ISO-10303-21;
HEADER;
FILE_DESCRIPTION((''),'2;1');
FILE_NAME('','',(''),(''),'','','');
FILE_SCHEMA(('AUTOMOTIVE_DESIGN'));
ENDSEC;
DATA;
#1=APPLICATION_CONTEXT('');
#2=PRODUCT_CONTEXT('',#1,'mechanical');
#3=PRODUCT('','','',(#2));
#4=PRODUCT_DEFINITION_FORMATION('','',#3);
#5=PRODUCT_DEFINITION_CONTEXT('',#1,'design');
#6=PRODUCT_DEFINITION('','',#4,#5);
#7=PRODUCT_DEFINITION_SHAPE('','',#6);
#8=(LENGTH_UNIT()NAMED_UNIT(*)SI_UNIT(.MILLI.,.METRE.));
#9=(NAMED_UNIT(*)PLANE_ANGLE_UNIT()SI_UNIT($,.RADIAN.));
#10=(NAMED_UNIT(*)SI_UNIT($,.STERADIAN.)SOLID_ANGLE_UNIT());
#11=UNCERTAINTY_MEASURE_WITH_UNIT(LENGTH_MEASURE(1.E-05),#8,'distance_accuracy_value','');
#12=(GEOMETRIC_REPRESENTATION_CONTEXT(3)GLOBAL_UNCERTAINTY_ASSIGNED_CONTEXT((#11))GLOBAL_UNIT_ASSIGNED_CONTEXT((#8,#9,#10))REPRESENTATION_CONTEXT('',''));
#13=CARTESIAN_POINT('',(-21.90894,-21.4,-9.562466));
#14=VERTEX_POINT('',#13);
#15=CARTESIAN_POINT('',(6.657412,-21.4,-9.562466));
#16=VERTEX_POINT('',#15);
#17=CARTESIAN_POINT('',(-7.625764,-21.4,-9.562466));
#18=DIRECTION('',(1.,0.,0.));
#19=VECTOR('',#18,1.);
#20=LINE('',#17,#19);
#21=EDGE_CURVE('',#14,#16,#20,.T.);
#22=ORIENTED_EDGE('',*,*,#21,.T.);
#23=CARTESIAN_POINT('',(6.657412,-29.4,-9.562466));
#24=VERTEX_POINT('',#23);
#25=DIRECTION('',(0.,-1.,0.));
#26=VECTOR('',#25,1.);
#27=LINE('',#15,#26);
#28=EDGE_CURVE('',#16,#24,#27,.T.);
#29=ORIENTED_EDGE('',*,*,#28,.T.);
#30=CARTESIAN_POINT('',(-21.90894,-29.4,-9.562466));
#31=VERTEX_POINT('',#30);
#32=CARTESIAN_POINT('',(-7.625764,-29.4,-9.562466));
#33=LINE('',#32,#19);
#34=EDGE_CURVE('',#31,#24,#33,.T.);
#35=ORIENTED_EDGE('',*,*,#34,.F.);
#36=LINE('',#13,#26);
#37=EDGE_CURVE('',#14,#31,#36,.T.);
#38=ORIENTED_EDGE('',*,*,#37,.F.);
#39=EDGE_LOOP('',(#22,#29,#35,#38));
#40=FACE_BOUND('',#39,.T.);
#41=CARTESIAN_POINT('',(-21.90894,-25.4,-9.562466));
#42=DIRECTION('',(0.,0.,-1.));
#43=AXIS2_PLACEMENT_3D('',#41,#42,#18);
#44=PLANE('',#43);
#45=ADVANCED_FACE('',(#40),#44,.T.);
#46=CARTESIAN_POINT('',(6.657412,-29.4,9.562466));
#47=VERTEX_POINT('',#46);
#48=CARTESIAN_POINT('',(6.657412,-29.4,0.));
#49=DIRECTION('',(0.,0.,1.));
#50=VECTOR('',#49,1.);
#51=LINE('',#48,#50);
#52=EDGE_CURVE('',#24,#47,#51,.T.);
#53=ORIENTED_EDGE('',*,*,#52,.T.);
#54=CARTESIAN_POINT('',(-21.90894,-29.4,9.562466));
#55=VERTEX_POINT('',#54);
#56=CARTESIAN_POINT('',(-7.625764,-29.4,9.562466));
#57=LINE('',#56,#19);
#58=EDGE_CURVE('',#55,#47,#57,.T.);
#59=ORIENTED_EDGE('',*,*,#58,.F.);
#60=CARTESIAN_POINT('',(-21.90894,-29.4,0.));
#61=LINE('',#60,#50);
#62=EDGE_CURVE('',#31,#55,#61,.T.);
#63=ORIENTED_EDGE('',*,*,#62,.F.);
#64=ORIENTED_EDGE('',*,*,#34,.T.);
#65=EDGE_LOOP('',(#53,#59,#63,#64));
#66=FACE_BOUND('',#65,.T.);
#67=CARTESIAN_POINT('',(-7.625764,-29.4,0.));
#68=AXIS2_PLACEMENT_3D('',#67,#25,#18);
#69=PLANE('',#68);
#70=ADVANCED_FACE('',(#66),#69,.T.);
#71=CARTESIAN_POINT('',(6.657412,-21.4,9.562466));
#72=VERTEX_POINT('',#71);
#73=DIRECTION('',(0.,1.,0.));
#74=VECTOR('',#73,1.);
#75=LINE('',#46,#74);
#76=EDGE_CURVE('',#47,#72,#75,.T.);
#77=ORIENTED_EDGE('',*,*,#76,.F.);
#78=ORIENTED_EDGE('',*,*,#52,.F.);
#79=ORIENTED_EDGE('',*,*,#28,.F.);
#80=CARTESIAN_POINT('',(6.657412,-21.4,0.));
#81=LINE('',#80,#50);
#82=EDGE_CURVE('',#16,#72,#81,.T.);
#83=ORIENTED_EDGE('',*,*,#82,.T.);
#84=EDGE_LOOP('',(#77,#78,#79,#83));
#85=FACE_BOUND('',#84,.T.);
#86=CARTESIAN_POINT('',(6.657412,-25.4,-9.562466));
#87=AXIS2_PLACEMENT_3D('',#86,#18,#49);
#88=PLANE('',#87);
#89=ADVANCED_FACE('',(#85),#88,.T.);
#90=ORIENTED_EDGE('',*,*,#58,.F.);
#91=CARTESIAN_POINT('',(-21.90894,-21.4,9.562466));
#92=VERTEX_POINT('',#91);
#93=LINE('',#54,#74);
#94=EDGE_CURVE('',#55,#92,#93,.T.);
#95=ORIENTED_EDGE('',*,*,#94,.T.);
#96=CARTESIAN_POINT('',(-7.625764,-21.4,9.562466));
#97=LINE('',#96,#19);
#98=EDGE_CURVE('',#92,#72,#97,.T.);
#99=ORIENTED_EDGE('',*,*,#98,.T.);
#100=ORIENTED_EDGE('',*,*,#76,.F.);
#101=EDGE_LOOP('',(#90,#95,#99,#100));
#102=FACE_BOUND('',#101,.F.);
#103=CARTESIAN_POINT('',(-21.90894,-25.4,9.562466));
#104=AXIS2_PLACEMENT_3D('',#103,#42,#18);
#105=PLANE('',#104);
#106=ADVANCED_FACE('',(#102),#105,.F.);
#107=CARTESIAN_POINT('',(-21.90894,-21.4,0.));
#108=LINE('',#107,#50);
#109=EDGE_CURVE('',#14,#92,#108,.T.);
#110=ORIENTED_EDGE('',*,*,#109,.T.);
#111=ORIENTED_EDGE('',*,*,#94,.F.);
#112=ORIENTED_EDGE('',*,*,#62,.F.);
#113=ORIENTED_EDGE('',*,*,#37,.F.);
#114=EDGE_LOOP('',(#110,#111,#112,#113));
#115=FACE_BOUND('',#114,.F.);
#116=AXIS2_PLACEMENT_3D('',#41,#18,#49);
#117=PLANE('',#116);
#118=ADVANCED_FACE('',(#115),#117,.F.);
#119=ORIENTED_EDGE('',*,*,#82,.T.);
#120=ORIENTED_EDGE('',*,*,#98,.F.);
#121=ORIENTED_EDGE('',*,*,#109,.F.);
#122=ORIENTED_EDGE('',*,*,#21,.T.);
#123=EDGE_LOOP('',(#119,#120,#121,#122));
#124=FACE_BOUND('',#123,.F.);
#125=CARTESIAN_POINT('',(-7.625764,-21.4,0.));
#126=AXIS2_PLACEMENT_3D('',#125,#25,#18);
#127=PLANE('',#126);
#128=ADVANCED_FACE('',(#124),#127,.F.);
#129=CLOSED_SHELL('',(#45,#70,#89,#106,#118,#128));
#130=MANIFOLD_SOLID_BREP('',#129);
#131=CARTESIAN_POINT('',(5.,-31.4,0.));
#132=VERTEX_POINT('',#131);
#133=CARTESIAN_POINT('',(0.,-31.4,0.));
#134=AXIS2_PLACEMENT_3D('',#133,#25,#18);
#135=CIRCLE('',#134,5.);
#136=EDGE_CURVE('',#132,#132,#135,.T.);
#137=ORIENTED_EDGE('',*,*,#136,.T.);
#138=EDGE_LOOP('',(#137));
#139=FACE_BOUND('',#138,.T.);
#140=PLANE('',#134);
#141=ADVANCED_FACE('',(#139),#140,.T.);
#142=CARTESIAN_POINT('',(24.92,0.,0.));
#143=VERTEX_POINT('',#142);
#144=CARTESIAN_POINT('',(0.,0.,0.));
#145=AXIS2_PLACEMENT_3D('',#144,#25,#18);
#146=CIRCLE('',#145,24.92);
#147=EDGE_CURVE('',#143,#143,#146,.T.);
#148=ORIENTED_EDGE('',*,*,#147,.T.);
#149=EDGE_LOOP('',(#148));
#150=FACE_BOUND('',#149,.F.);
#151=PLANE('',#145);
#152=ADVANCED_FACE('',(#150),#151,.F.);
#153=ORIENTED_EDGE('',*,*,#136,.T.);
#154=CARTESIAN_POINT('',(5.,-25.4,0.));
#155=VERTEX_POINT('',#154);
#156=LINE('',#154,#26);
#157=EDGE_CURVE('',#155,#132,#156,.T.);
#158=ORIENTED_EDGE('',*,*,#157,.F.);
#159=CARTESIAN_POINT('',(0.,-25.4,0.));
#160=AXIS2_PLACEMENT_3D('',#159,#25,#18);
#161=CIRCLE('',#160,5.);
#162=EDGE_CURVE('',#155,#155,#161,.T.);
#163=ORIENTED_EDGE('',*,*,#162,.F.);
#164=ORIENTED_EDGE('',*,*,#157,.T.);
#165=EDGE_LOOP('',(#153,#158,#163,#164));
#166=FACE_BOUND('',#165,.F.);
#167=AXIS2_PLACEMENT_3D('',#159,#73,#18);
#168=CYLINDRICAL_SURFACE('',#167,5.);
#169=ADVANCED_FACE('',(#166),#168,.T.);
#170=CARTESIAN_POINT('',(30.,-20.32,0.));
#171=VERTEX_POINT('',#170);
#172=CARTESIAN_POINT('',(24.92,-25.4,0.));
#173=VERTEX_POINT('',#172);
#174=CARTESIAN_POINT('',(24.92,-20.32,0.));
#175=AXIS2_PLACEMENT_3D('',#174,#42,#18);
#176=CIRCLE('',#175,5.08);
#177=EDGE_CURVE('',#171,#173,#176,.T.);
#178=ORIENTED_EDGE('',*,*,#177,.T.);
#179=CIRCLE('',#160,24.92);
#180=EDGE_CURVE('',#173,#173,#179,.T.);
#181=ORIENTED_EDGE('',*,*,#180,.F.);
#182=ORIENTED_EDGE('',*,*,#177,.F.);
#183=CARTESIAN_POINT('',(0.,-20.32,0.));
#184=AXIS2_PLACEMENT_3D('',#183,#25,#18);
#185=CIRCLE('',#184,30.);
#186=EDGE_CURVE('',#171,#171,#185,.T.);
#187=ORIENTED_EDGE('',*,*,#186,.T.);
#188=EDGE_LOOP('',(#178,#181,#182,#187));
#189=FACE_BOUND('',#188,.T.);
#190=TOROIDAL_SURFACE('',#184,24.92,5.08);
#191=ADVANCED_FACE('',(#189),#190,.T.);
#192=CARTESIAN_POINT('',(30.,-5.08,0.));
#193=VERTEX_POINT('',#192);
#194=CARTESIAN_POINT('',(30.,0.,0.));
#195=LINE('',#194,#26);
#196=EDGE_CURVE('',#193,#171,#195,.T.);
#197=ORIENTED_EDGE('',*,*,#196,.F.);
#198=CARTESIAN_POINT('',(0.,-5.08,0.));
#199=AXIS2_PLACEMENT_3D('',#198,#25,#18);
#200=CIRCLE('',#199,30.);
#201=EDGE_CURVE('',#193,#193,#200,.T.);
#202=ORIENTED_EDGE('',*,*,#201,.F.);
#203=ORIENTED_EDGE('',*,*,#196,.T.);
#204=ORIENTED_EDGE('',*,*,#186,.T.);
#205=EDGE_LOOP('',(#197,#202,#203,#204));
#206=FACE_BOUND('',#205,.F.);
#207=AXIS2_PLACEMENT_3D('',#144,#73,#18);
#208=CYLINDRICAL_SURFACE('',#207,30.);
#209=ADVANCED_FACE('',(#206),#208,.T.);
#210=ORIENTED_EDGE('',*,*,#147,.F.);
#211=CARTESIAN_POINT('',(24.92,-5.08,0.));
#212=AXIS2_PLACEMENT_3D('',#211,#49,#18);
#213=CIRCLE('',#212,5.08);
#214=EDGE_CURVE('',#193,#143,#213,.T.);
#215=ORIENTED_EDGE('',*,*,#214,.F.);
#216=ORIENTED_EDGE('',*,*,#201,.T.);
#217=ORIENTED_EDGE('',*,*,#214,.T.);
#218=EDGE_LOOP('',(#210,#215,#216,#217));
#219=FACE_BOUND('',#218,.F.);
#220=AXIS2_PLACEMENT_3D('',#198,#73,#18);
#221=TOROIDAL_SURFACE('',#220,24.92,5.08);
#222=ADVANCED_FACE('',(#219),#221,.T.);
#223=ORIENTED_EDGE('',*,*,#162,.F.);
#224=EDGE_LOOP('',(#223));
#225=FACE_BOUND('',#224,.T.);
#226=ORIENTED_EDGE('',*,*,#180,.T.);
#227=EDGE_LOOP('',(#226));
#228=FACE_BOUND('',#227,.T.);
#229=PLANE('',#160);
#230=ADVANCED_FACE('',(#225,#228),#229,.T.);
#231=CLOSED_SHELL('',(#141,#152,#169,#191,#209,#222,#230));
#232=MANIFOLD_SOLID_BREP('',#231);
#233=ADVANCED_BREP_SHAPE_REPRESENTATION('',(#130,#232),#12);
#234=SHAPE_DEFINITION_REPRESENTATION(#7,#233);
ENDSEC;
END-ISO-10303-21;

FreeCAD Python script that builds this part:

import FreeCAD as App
import Part
import Sketcher


def edges_at(feature, points):
    """Names of the edges that pass closest to the given points."""
    edges = feature.Shape.Edges
    near = lambda p: min(range(len(edges)), key=lambda i: edges[i].distToShape(Part.Vertex(*p))[0])
    return sorted({f"Edge{near(p) + 1}" for p in points})


def add_polygon(sketch, points):
    """Adds a closed chain of lines whose ends are joined by coincident constraints."""
    first, n = sketch.GeometryCount, len(points)
    for a, b in zip(points, points[1:] + points[:1]):
        sketch.addGeometry(Part.LineSegment(App.Vector(*a, 0), App.Vector(*b, 0)), False)
    for i in range(n):
        sketch.addConstraint(Sketcher.Constraint("Coincident", first + i, 2, first + (i + 1) % n, 1))

doc = App.newDocument("Part")
params = doc.addObject("Spreadsheet::Sheet", "Params")
for row, (alias, value) in enumerate([
    ("sketch1_diameter", "60 mm"),
    ("pad1_length", "25.4 mm"),
    ("fillet_radius", "5.08 mm"),
    ("sketch2_diameter", "49.84 mm"),
    ("pad2_length", "25.4 mm"),
    ("sketch3_diameter", "10 mm"),
    ("pad3_length", "6 mm"),
    ("pad4_length", "8 mm"),
], start=1):
    params.set(f"A{row}", alias)
    params.set(f"B{row}", "=" + value)
    params.setAlias(f"B{row}", alias)

body = doc.addObject("PartDesign::Body", "Body")

# Sketch on XZ plane
sketch1 = body.newObject("Sketcher::SketchObject", "Sketch")
sketch1.AttachmentSupport = (doc.getObject("XZ_Plane"), [""])
sketch1.MapMode = "FlatFace"
sketch1.addGeometry(Part.Circle(App.Vector(0, 0, 0), App.Vector(0, 0, 1), 30), False)
sketch1.addConstraint([
    Sketcher.Constraint("Coincident", 0, 3, -1, 1),
    Sketcher.Constraint("Diameter", 0, 60.0),
])
sketch1.setExpression("Constraints[1]", "Params.sketch1_diameter")
pad1 = body.newObject("PartDesign::Pad", "Pad")
pad1.Profile = sketch1
pad1.setExpression("Length", "Params.pad1_length")
doc.recompute()

fillet = body.newObject("PartDesign::Fillet", "Fillet")
fillet.Base = (pad1, edges_at(pad1, [(-30, -25.4, 0), (-30, 0, 0)]))
fillet.setExpression("Radius", "Params.fillet_radius")

# Sketch on XZ plane
sketch2 = body.newObject("Sketcher::SketchObject", "Sketch001")
sketch2.AttachmentSupport = (doc.getObject("XZ_Plane"), [""])
sketch2.MapMode = "FlatFace"
sketch2.AttachmentOffset = App.Placement(App.Vector(0, 0, 25.4), App.Rotation())
sketch2.addGeometry(Part.Circle(App.Vector(0, 0, 0), App.Vector(0, 0, 1), 25), False)
sketch2.addConstraint([
    Sketcher.Constraint("Coincident", 0, 3, -1, 1),
    Sketcher.Constraint("Diameter", 0, 49.84),
])
sketch2.setExpression("Constraints[1]", "Params.sketch2_diameter")
pad2 = body.newObject("PartDesign::Pad", "Pad001")
pad2.Profile = sketch2
pad2.setExpression("Length", "Params.pad2_length")
pad2.Reversed = True

# Sketch on XZ plane
sketch3 = body.newObject("Sketcher::SketchObject", "Sketch002")
sketch3.AttachmentSupport = (doc.getObject("XZ_Plane"), [""])
sketch3.MapMode = "FlatFace"
sketch3.AttachmentOffset = App.Placement(App.Vector(0, 0, 25.4), App.Rotation())
sketch3.addGeometry(Part.Circle(App.Vector(0, 0, 0), App.Vector(0, 0, 1), 5), False)
sketch3.addConstraint([
    Sketcher.Constraint("Coincident", 0, 3, -1, 1),
    Sketcher.Constraint("Diameter", 0, 10.0),
])
sketch3.setExpression("Constraints[1]", "Params.sketch3_diameter")
pad3 = body.newObject("PartDesign::Pad", "Pad002")
pad3.Profile = sketch3
pad3.setExpression("Length", "Params.pad3_length")
body2 = doc.addObject("PartDesign::Body", "Body001")

# Sketch on XZ plane
sketch4 = body2.newObject("Sketcher::SketchObject", "Sketch003")
sketch4.AttachmentSupport = (doc.getObject("XZ_Plane001"), [""])
sketch4.MapMode = "FlatFace"
sketch4.AttachmentOffset = App.Placement(App.Vector(0, 0, 25.4), App.Rotation())
add_polygon(sketch4, [(-22, 10), (-22, -10), (7, -10), (7, 10)])  # lines 0-3
sketch4.addConstraint([
    Sketcher.Constraint("Vertical", 0),
    Sketcher.Constraint("Horizontal", 1),
    Sketcher.Constraint("Vertical", 2),
    Sketcher.Constraint("Horizontal", 3),
    Sketcher.Constraint("DistanceX", 1, 1, 1, 2, 28.566352),
    Sketcher.Constraint("DistanceY", 0, 2, 0, 1, 19.124932),
    Sketcher.Constraint("DistanceX", 0, 2, -1, 1, 21.90894),
    Sketcher.Constraint("DistanceY", 0, 2, -1, 1, 9.562466),
])
pad4 = body2.newObject("PartDesign::Pad", "Pad003")
pad4.Profile = sketch4
pad4.setExpression("Length", "Params.pad4_length")
pad4.Midplane = True

doc.recompute()
